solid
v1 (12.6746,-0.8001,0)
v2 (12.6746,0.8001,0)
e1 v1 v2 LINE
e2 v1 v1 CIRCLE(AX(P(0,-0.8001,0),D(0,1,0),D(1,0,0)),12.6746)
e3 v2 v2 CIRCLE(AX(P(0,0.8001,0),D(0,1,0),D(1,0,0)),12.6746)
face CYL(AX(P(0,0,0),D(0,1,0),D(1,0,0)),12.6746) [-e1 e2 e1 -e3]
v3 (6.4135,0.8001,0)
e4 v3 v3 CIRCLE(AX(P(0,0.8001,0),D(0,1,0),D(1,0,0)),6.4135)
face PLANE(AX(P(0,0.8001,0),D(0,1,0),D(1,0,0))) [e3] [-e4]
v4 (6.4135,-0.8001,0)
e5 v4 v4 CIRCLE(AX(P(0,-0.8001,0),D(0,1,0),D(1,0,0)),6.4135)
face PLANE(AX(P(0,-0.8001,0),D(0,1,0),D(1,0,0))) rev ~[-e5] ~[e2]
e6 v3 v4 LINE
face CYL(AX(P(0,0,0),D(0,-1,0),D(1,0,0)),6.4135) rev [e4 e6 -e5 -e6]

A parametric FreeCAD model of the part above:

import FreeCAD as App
import Part
import Sketcher
Q = App.Units.Quantity

doc = App.newDocument("Part")
body = doc.addObject("PartDesign::Body", "Body")

sketch1 = doc.addObject("Sketcher::SketchObject", "Sketch")
body.addObject(sketch1)
sketch1.AttachmentSupport = (doc.XZ_Plane, [""])
sketch1.MapMode = "FlatFace"
sketch1.addGeometry(Part.Circle(App.Vector(0, 0, 0), App.Vector(0, 0, 1), 13), False)
sketch1.addGeometry(Part.Circle(App.Vector(0, 0, 0), App.Vector(0, 0, 1), 6), False)
sketch1.addConstraint(Sketcher.Constraint("Coincident", 0, 3, -1, 1))
sketch1.addConstraint(Sketcher.Constraint("Coincident", 1, 3, -1, 1))
sketch1.addConstraint(Sketcher.Constraint("Diameter", 0, Q("0.998 in")))
sketch1.addConstraint(Sketcher.Constraint("Diameter", 1, Q("0.505 in")))
pad1 = doc.addObject("PartDesign::Pad", "Pad")
body.addObject(pad1)
pad1.Profile = sketch1
pad1.Length = Q("0.063 in")
pad1.Midplane = True

doc.recompute()
